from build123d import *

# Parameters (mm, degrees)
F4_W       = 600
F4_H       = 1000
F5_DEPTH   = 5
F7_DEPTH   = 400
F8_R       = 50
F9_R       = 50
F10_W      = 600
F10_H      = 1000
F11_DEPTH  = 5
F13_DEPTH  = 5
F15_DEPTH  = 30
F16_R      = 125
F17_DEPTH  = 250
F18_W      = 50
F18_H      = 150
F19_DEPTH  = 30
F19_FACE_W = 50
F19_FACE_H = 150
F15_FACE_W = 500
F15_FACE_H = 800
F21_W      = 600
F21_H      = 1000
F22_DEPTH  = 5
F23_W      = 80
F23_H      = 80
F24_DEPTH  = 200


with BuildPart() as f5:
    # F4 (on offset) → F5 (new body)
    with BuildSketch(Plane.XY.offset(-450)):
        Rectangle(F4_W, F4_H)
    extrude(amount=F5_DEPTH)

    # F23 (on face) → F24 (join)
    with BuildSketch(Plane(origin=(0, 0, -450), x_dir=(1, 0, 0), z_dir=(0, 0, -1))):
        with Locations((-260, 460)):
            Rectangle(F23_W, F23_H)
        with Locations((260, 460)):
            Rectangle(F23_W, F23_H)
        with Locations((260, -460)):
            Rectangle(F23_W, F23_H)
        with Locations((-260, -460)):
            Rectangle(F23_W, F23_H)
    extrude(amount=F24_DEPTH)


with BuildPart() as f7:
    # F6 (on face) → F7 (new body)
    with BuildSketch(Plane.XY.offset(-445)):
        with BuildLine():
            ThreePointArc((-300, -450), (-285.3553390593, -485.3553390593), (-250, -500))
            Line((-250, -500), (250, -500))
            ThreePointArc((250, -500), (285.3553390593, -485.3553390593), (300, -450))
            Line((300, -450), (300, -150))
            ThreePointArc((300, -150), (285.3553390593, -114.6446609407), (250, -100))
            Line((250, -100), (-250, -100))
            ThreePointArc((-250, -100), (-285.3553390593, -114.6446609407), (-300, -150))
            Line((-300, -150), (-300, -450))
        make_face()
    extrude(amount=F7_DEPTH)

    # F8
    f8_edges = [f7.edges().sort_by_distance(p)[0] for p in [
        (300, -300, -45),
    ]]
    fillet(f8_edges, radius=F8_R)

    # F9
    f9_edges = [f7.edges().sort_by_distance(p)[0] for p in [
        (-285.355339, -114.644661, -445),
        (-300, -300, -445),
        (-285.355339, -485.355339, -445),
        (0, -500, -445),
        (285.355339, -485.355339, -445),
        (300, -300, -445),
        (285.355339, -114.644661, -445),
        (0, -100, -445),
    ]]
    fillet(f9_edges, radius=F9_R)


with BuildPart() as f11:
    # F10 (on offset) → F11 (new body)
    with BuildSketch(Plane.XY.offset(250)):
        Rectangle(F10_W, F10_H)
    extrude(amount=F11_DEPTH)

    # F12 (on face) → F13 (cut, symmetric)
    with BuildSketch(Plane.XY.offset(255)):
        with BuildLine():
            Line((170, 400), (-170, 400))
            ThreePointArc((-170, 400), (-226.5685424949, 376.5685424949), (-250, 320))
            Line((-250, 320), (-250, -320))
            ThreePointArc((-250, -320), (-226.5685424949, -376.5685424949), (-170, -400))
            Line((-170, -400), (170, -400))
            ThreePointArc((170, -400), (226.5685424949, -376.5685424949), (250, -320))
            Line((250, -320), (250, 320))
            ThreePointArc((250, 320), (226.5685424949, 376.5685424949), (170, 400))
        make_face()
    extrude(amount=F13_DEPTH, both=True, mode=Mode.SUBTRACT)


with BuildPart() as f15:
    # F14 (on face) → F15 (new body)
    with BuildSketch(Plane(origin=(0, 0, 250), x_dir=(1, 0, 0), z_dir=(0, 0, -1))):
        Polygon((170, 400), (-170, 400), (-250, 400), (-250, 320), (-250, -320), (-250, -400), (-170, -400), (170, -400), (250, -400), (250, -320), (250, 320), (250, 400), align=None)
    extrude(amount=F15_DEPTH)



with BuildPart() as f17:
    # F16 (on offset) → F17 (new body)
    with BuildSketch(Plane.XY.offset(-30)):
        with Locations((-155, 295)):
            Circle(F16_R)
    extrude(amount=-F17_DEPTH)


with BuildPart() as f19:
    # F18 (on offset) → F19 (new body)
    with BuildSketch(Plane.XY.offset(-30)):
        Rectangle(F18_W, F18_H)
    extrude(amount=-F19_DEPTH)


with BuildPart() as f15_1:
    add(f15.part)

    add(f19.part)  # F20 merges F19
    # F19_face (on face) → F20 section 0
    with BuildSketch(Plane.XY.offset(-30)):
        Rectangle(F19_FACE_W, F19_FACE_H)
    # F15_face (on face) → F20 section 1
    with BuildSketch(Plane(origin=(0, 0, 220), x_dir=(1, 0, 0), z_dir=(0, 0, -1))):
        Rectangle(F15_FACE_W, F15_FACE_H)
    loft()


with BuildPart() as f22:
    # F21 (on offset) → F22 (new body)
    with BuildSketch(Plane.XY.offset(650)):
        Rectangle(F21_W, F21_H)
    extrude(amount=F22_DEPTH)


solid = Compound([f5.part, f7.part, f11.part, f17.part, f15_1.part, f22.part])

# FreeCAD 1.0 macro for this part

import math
import FreeCAD as App
import Part
import Sketcher
Q = App.Units.Quantity


def edges_at(feature, points):
    """Names of the edges that pass closest to the given points."""
    edges = feature.Shape.Edges
    near = lambda p: min(range(len(edges)), key=lambda i: edges[i].distToShape(Part.Vertex(*p))[0])
    return sorted({f"Edge{near(p) + 1}" for p in points})

doc = App.newDocument("Part")
body = doc.addObject("PartDesign::Body", "Body")

sketch1 = doc.addObject("Sketcher::SketchObject", "Sketch")
body.addObject(sketch1)
sketch1.AttachmentSupport = (doc.XY_Plane, [""])
sketch1.MapMode = "FlatFace"
sketch1.AttachmentOffset = App.Placement(App.Vector(0, 0, -450), App.Rotation())
sketch1.addGeometry([
    Part.LineSegment(App.Vector(-300, 500, 0), App.Vector(-300, -500, 0)),
    Part.LineSegment(App.Vector(-300, -500, 0), App.Vector(300, -500, 0)),
    Part.LineSegment(App.Vector(300, -500, 0), App.Vector(300, 500, 0)),
    Part.LineSegment(App.Vector(300, 500, 0), App.Vector(-300, 500, 0)),
], False)
sketch1.addConstraint([
    Sketcher.Constraint("Coincident", 0, 2, 1, 1),
    Sketcher.Constraint("Coincident", 1, 2, 2, 1),
    Sketcher.Constraint("Coincident", 2, 2, 3, 1),
    Sketcher.Constraint("Coincident", 3, 2, 0, 1),
    Sketcher.Constraint("Vertical", 0),
    Sketcher.Constraint("Horizontal", 1),
    Sketcher.Constraint("Vertical", 2),
    Sketcher.Constraint("Horizontal", 3),
    Sketcher.Constraint("Symmetric", 0, 2, 2, 2, -1, 1),
    Sketcher.Constraint("DistanceX", 1, 1, 1, 2, Q("600 mm")),
    Sketcher.Constraint("DistanceY", 0, 2, 0, 1, Q("1000 mm")),
])
pad1 = doc.addObject("PartDesign::Pad", "Pad")
body.addObject(pad1)
pad1.Profile = sketch1
pad1.Length = 5

sketch2 = doc.addObject("Sketcher::SketchObject", "Sketch001")
body.addObject(sketch2)
sketch2.AttachmentSupport = (doc.XY_Plane, [""])
sketch2.MapMode = "FlatFace"
sketch2.AttachmentOffset = App.Placement(App.Vector(0, 0, -450), App.Rotation())
sketch2.addGeometry([
    Part.LineSegment(App.Vector(-300, -500, 0), App.Vector(-300, -420, 0)),
    Part.LineSegment(App.Vector(-300, -420, 0), App.Vector(-220, -420, 0)),
    Part.LineSegment(App.Vector(-220, -420, 0), App.Vector(-220, -500, 0)),
    Part.LineSegment(App.Vector(-220, -500, 0), App.Vector(-300, -500, 0)),
    Part.LineSegment(App.Vector(220, -500, 0), App.Vector(220, -420, 0)),
    Part.LineSegment(App.Vector(220, -420, 0), App.Vector(300, -420, 0)),
    Part.LineSegment(App.Vector(300, -420, 0), App.Vector(300, -500, 0)),
    Part.LineSegment(App.Vector(300, -500, 0), App.Vector(220, -500, 0)),
    Part.LineSegment(App.Vector(220, 420, 0), App.Vector(220, 500, 0)),
    Part.LineSegment(App.Vector(220, 500, 0), App.Vector(300, 500, 0)),
    Part.LineSegment(App.Vector(300, 500, 0), App.Vector(300, 420, 0)),
    Part.LineSegment(App.Vector(300, 420, 0), App.Vector(220, 420, 0)),
    Part.LineSegment(App.Vector(-300, 420, 0), App.Vector(-300, 500, 0)),
    Part.LineSegment(App.Vector(-300, 500, 0), App.Vector(-220, 500, 0)),
    Part.LineSegment(App.Vector(-220, 500, 0), App.Vector(-220, 420, 0)),
    Part.LineSegment(App.Vector(-220, 420, 0), App.Vector(-300, 420, 0)),
], False)
sketch2.addConstraint([
    Sketcher.Constraint("Coincident", 0, 2, 1, 1),
    Sketcher.Constraint("Coincident", 1, 2, 2, 1),
    Sketcher.Constraint("Coincident", 2, 2, 3, 1),
    Sketcher.Constraint("Coincident", 3, 2, 0, 1),
    Sketcher.Constraint("Coincident", 4, 2, 5, 1),
    Sketcher.Constraint("Coincident", 5, 2, 6, 1),
    Sketcher.Constraint("Coincident", 6, 2, 7, 1),
    Sketcher.Constraint("Coincident", 7, 2, 4, 1),
    Sketcher.Constraint("Coincident", 8, 2, 9, 1),
    Sketcher.Constraint("Coincident", 9, 2, 10, 1),
    Sketcher.Constraint("Coincident", 10, 2, 11, 1),
    Sketcher.Constraint("Coincident", 11, 2, 8, 1),
    Sketcher.Constraint("Coincident", 12, 2, 13, 1),
    Sketcher.Constraint("Coincident", 13, 2, 14, 1),
    Sketcher.Constraint("Coincident", 14, 2, 15, 1),
    Sketcher.Constraint("Coincident", 15, 2, 12, 1),
    Sketcher.Constraint("Vertical", 0),
    Sketcher.Constraint("Horizontal", 1),
    Sketcher.Constraint("Vertical", 2),
    Sketcher.Constraint("Horizontal", 3),
    Sketcher.Constraint("Vertical", 4),
    Sketcher.Constraint("Horizontal", 5),
    Sketcher.Constraint("Vertical", 6),
    Sketcher.Constraint("Horizontal", 7),
    Sketcher.Constraint("Vertical", 8),
    Sketcher.Constraint("Horizontal", 9),
    Sketcher.Constraint("Vertical", 10),
    Sketcher.Constraint("Horizontal", 11),
    Sketcher.Constraint("Vertical", 12),
    Sketcher.Constraint("Horizontal", 13),
    Sketcher.Constraint("Vertical", 14),
    Sketcher.Constraint("Horizontal", 15),
    Sketcher.Constraint("Symmetric", 2, 2, 8, 2, -1, 1),
    Sketcher.Constraint("Symmetric", 0, 2, 10, 2, -1, 1),
    Sketcher.Constraint("Symmetric", 6, 2, 12, 2, -1, 1),
    Sketcher.Constraint("Symmetric", 4, 2, 14, 2, -1, 1),
    Sketcher.Constraint("Symmetric", 1, 2, 4, 2, -2),
    Sketcher.Constraint("Symmetric", 3, 2, 6, 2, -2),
    Sketcher.Constraint("Equal", 15, 0),
    Sketcher.Constraint("DistanceX", 1, 1, 1, 2, Q("80 mm")),
    Sketcher.Constraint("DistanceX", 0, 2, -1, 1, Q("300 mm")),
    Sketcher.Constraint("DistanceY", 0, 2, -1, 1, Q("420 mm")),
])
pad2 = doc.addObject("PartDesign::Pad", "Pad001")
body.addObject(pad2)
pad2.Profile = sketch2
pad2.Length = 200
pad2.Reversed = True
body2 = doc.addObject("PartDesign::Body", "Body001")

sketch3 = doc.addObject("Sketcher::SketchObject", "Sketch002")
body2.addObject(sketch3)
sketch3.AttachmentSupport = (doc.getObject("XY_Plane001"), [""])
sketch3.MapMode = "FlatFace"
sketch3.AttachmentOffset = App.Placement(App.Vector(0, 0, -445), App.Rotation())
sketch3.addGeometry([
    Part.ArcOfCircle(Part.Circle(App.Vector(-250, -450, 0), App.Vector(0, 0, 1), 50), math.radians(180), math.radians(270)),
    Part.LineSegment(App.Vector(-250, -500, 0), App.Vector(250, -500, 0)),
    Part.ArcOfCircle(Part.Circle(App.Vector(250, -450, 0), App.Vector(0, 0, 1), 50), math.radians(-90), math.radians(0)),
    Part.LineSegment(App.Vector(300, -450, 0), App.Vector(300, -150, 0)),
    Part.ArcOfCircle(Part.Circle(App.Vector(250, -150, 0), App.Vector(0, 0, 1), 50), math.radians(0), math.radians(90)),
    Part.LineSegment(App.Vector(250, -100, 0), App.Vector(-250, -100, 0)),
    Part.ArcOfCircle(Part.Circle(App.Vector(-250, -150, 0), App.Vector(0, 0, 1), 50), math.radians(90), math.radians(180)),
    Part.LineSegment(App.Vector(-300, -150, 0), App.Vector(-300, -450, 0)),
], False)
sketch3.addConstraint([
    Sketcher.Constraint("Tangent", 0, 2, 1, 1),
    Sketcher.Constraint("Tangent", 1, 2, 2, 1),
    Sketcher.Constraint("Tangent", 2, 2, 3, 1),
    Sketcher.Constraint("Tangent", 3, 2, 4, 1),
    Sketcher.Constraint("Tangent", 4, 2, 5, 1),
    Sketcher.Constraint("Tangent", 5, 2, 6, 1),
    Sketcher.Constraint("Tangent", 6, 2, 7, 1),
    Sketcher.Constraint("Tangent", 7, 2, 0, 1),
    Sketcher.Constraint("Horizontal", 1),
    Sketcher.Constraint("Vertical", 3),
    Sketcher.Constraint("Horizontal", 5),
    Sketcher.Constraint("Vertical", 7),
    Sketcher.Constraint("Equal", 0, 2),
    Sketcher.Constraint("Equal", 2, 4),
    Sketcher.Constraint("Equal", 4, 6),
    Sketcher.Constraint("Radius", 0, Q("50 mm")),
    Sketcher.Constraint("DistanceX", 1, 1, 1, 2, Q("500 mm")),
    Sketcher.Constraint("DistanceY", 3, 1, 3, 2, Q("300 mm")),
    Sketcher.Constraint("DistanceX", 0, 3, -1, 1, Q("250 mm")),
    Sketcher.Constraint("DistanceY", 0, 3, -1, 1, Q("450 mm")),
])
pad3 = doc.addObject("PartDesign::Pad", "Pad002")
body2.addObject(pad3)
pad3.Profile = sketch3
pad3.Length = 400
doc.recompute()

fillet = doc.addObject("PartDesign::Fillet", "Fillet")
body2.addObject(fillet)
fillet.Base = (pad3, edges_at(pad3, [(300, -300, -45)]))
fillet.Radius = 50
doc.recompute()

fillet2 = doc.addObject("PartDesign::Fillet", "Fillet001")
body2.addObject(fillet2)
fillet2.Base = (fillet, edges_at(fillet, [
    (-285.355, -114.645, -445),
    (-300, -300, -445),
    (-285.355, -485.355, -445),
    (0, -500, -445),
    (285.355, -485.355, -445),
    (300, -300, -445),
    (285.355, -114.645, -445),
    (0, -100, -445),
]))
fillet2.Radius = 50
body3 = doc.addObject("PartDesign::Body", "Body002")

sketch4 = doc.addObject("Sketcher::SketchObject", "Sketch003")
body3.addObject(sketch4)
sketch4.AttachmentSupport = (doc.getObject("XY_Plane002"), [""])
sketch4.MapMode = "FlatFace"
sketch4.AttachmentOffset = App.Placement(App.Vector(0, 0, 250), App.Rotation())
sketch4.addGeometry([
    Part.LineSegment(App.Vector(-300, 500, 0), App.Vector(-300, -500, 0)),
    Part.LineSegment(App.Vector(-300, -500, 0), App.Vector(300, -500, 0)),
    Part.LineSegment(App.Vector(300, -500, 0), App.Vector(300, 500, 0)),
    Part.LineSegment(App.Vector(300, 500, 0), App.Vector(-300, 500, 0)),
], False)
sketch4.addConstraint([
    Sketcher.Constraint("Coincident", 0, 2, 1, 1),
    Sketcher.Constraint("Coincident", 1, 2, 2, 1),
    Sketcher.Constraint("Coincident", 2, 2, 3, 1),
    Sketcher.Constraint("Coincident", 3, 2, 0, 1),
    Sketcher.Constraint("Vertical", 0),
    Sketcher.Constraint("Horizontal", 1),
    Sketcher.Constraint("Vertical", 2),
    Sketcher.Constraint("Horizontal", 3),
    Sketcher.Constraint("Symmetric", 0, 2, 2, 2, -1, 1),
    Sketcher.Constraint("DistanceX", 1, 1, 1, 2, Q("600 mm")),
    Sketcher.Constraint("DistanceY", 0, 2, 0, 1, Q("1000 mm")),
])
pad4 = doc.addObject("PartDesign::Pad", "Pad003")
body3.addObject(pad4)
pad4.Profile = sketch4
pad4.Length = 5

sketch5 = doc.addObject("Sketcher::SketchObject", "Sketch004")
body3.addObject(sketch5)
sketch5.AttachmentSupport = (doc.getObject("XY_Plane002"), [""])
sketch5.MapMode = "FlatFace"
sketch5.AttachmentOffset = App.Placement(App.Vector(0, 0, 255), App.Rotation())
sketch5.addGeometry([
    Part.LineSegment(App.Vector(170, 400, 0), App.Vector(-170, 400, 0)),
    Part.ArcOfCircle(Part.Circle(App.Vector(-170, 320, 0), App.Vector(0, 0, 1), 80), math.radians(90), math.radians(180)),
    Part.LineSegment(App.Vector(-250, 320, 0), App.Vector(-250, -320, 0)),
    Part.ArcOfCircle(Part.Circle(App.Vector(-170, -320, 0), App.Vector(0, 0, 1), 80), math.radians(180), math.radians(270)),
    Part.LineSegment(App.Vector(-170, -400, 0), App.Vector(170, -400, 0)),
    Part.ArcOfCircle(Part.Circle(App.Vector(170, -320, 0), App.Vector(0, 0, 1), 80), math.radians(-90), math.radians(0)),
    Part.LineSegment(App.Vector(250, -320, 0), App.Vector(250, 320, 0)),
    Part.ArcOfCircle(Part.Circle(App.Vector(170, 320, 0), App.Vector(0, 0, 1), 80), math.radians(0), math.radians(90)),
], False)
sketch5.addConstraint([
    Sketcher.Constraint("Tangent", 0, 2, 1, 1),
    Sketcher.Constraint("Tangent", 1, 2, 2, 1),
    Sketcher.Constraint("Tangent", 2, 2, 3, 1),
    Sketcher.Constraint("Tangent", 3, 2, 4, 1),
    Sketcher.Constraint("Tangent", 4, 2, 5, 1),
    Sketcher.Constraint("Tangent", 5, 2, 6, 1),
    Sketcher.Constraint("Tangent", 6, 2, 7, 1),
    Sketcher.Constraint("Tangent", 7, 2, 0, 1),
    Sketcher.Constraint("Horizontal", 0),
    Sketcher.Constraint("Vertical", 2),
    Sketcher.Constraint("Horizontal", 4),
    Sketcher.Constraint("Vertical", 6),
    Sketcher.Constraint("Equal", 1, 3),
    Sketcher.Constraint("Equal", 3, 5),
    Sketcher.Constraint("Equal", 5, 7),
    Sketcher.Constraint("Symmetric", 1, 3, 5, 3, -1, 1),
    Sketcher.Constraint("Radius", 1, Q("80 mm")),
    Sketcher.Constraint("DistanceX", 0, 2, 0, 1, Q("340 mm")),
    Sketcher.Constraint("DistanceY", 2, 2, 2, 1, Q("640 mm")),
])
pocket1 = doc.addObject("PartDesign::Pocket", "Pocket")
body3.addObject(pocket1)
pocket1.Profile = sketch5
pocket1.Length = 10
pocket1.Midplane = True
body4 = doc.addObject("PartDesign::Body", "Body003")

sketch6 = doc.addObject("Sketcher::SketchObject", "Sketch005")
body4.addObject(sketch6)
sketch6.AttachmentSupport = (doc.getObject("XY_Plane003"), [""])
sketch6.MapMode = "FlatFace"
sketch6.AttachmentOffset = App.Placement(App.Vector(0, 0, 250), App.Rotation())
sketch6.addGeometry([
    Part.LineSegment(App.Vector(-250, -400, 0), App.Vector(-250, 400, 0)),
    Part.LineSegment(App.Vector(-250, 400, 0), App.Vector(250, 400, 0)),
    Part.LineSegment(App.Vector(250, 400, 0), App.Vector(250, -400, 0)),
    Part.LineSegment(App.Vector(250, -400, 0), App.Vector(-250, -400, 0)),
], False)
sketch6.addConstraint([
    Sketcher.Constraint("Coincident", 0, 2, 1, 1),
    Sketcher.Constraint("Coincident", 1, 2, 2, 1),
    Sketcher.Constraint("Coincident", 2, 2, 3, 1),
    Sketcher.Constraint("Coincident", 3, 2, 0, 1),
    Sketcher.Constraint("Vertical", 0),
    Sketcher.Constraint("Horizontal", 1),
    Sketcher.Constraint("Vertical", 2),
    Sketcher.Constraint("Horizontal", 3),
    Sketcher.Constraint("Symmetric", 0, 2, 2, 2, -1, 1),
    Sketcher.Constraint("DistanceX", 1, 1, 1, 2, Q("500 mm")),
    Sketcher.Constraint("DistanceY", 0, 1, 0, 2, Q("800 mm")),
])
pad5 = doc.addObject("PartDesign::Pad", "Pad004")
body4.addObject(pad5)
pad5.Profile = sketch6
pad5.Length = 30
pad5.Reversed = True
body5 = doc.addObject("PartDesign::Body", "Body004")

sketch7 = doc.addObject("Sketcher::SketchObject", "Sketch006")
body5.addObject(sketch7)
sketch7.AttachmentSupport = (doc.getObject("XY_Plane004"), [""])
sketch7.MapMode = "FlatFace"
sketch7.AttachmentOffset = App.Placement(App.Vector(0, 0, -30), App.Rotation())
sketch7.addGeometry(Part.Circle(App.Vector(-155, 295, 0), App.Vector(0, 0, 1), 125), False)
sketch7.addConstraint([
    Sketcher.Constraint("Diameter", 0, Q("250 mm")),
    Sketcher.Constraint("DistanceX", 0, 3, -1, 1, Q("155 mm")),
    Sketcher.Constraint("DistanceY", -1, 1, 0, 3, Q("295 mm")),
])
pad6 = doc.addObject("PartDesign::Pad", "Pad005")
body5.addObject(pad6)
pad6.Profile = sketch7
pad6.Length = 250
pad6.Reversed = True
body6 = doc.addObject("PartDesign::Body", "Body005")

sketch8 = doc.addObject("Sketcher::SketchObject", "Sketch007")
body6.addObject(sketch8)
sketch8.AttachmentSupport = (doc.getObject("XY_Plane005"), [""])
sketch8.MapMode = "FlatFace"
sketch8.AttachmentOffset = App.Placement(App.Vector(0, 0, -30), App.Rotation())
sketch8.addGeometry([
    Part.LineSegment(App.Vector(-25, 75, 0), App.Vector(-25, -75, 0)),
    Part.LineSegment(App.Vector(-25, -75, 0), App.Vector(25, -75, 0)),
    Part.LineSegment(App.Vector(25, -75, 0), App.Vector(25, 75, 0)),
    Part.LineSegment(App.Vector(25, 75, 0), App.Vector(-25, 75, 0)),
], False)
sketch8.addConstraint([
    Sketcher.Constraint("Coincident", 0, 2, 1, 1),
    Sketcher.Constraint("Coincident", 1, 2, 2, 1),
    Sketcher.Constraint("Coincident", 2, 2, 3, 1),
    Sketcher.Constraint("Coincident", 3, 2, 0, 1),
    Sketcher.Constraint("Vertical", 0),
    Sketcher.Constraint("Horizontal", 1),
    Sketcher.Constraint("Vertical", 2),
    Sketcher.Constraint("Horizontal", 3),
    Sketcher.Constraint("Symmetric", 0, 2, 2, 2, -1, 1),
    Sketcher.Constraint("DistanceX", 1, 1, 1, 2, Q("50 mm")),
    Sketcher.Constraint("DistanceY", 0, 2, 0, 1, Q("150 mm")),
])
pad7 = doc.addObject("PartDesign::Pad", "Pad006")
body6.addObject(pad7)
pad7.Profile = sketch8
pad7.Length = 30
pad7.Reversed = True
body4.AllowCompound = True
doc.recompute()

boolean = doc.addObject("PartDesign::Boolean", "Boolean")
body4.addObject(boolean)
boolean.Type = "Fuse"
boolean.addObjects([body6])

sketch9 = doc.addObject("Sketcher::SketchObject", "Sketch008")
body4.addObject(sketch9)
sketch9.AttachmentSupport = (doc.getObject("XY_Plane003"), [""])
sketch9.MapMode = "FlatFace"
sketch9.AttachmentOffset = App.Placement(App.Vector(0, 0, -30), App.Rotation())
sketch9.addGeometry([
    Part.LineSegment(App.Vector(-25, 75, 0), App.Vector(-25, -75, 0)),
    Part.LineSegment(App.Vector(-25, -75, 0), App.Vector(25, -75, 0)),
    Part.LineSegment(App.Vector(25, -75, 0), App.Vector(25, 75, 0)),
    Part.LineSegment(App.Vector(25, 75, 0), App.Vector(-25, 75, 0)),
], False)
sketch9.addConstraint([
    Sketcher.Constraint("Coincident", 0, 2, 1, 1),
    Sketcher.Constraint("Coincident", 1, 2, 2, 1),
    Sketcher.Constraint("Coincident", 2, 2, 3, 1),
    Sketcher.Constraint("Coincident", 3, 2, 0, 1),
    Sketcher.Constraint("Vertical", 0),
    Sketcher.Constraint("Horizontal", 1),
    Sketcher.Constraint("Vertical", 2),
    Sketcher.Constraint("Horizontal", 3),
    Sketcher.Constraint("Symmetric", 0, 2, 2, 2, -1, 1),
    Sketcher.Constraint("DistanceX", 1, 1, 1, 2, Q("50 mm")),
    Sketcher.Constraint("DistanceY", 0, 2, 0, 1, Q("150 mm")),
])

sketch10 = doc.addObject("Sketcher::SketchObject", "Sketch009")
body4.addObject(sketch10)
sketch10.AttachmentSupport = (doc.getObject("XY_Plane003"), [""])
sketch10.MapMode = "FlatFace"
sketch10.AttachmentOffset = App.Placement(App.Vector(0, 0, 220), App.Rotation())
sketch10.addGeometry([
    Part.LineSegment(App.Vector(-250, -400, 0), App.Vector(-250, 400, 0)),
    Part.LineSegment(App.Vector(-250, 400, 0), App.Vector(250, 400, 0)),
    Part.LineSegment(App.Vector(250, 400, 0), App.Vector(250, -400, 0)),
    Part.LineSegment(App.Vector(250, -400, 0), App.Vector(-250, -400, 0)),
], False)
sketch10.addConstraint([
    Sketcher.Constraint("Coincident", 0, 2, 1, 1),
    Sketcher.Constraint("Coincident", 1, 2, 2, 1),
    Sketcher.Constraint("Coincident", 2, 2, 3, 1),
    Sketcher.Constraint("Coincident", 3, 2, 0, 1),
    Sketcher.Constraint("Vertical", 0),
    Sketcher.Constraint("Horizontal", 1),
    Sketcher.Constraint("Vertical", 2),
    Sketcher.Constraint("Horizontal", 3),
    Sketcher.Constraint("Symmetric", 0, 2, 2, 2, -1, 1),
    Sketcher.Constraint("DistanceX", 1, 1, 1, 2, Q("500 mm")),
    Sketcher.Constraint("DistanceY", 0, 1, 0, 2, Q("800 mm")),
])

additiveloft = doc.addObject("PartDesign::AdditiveLoft", "AdditiveLoft")
body4.addObject(additiveloft)
additiveloft.Profile = sketch9
additiveloft.Sections = [sketch10]
body7 = doc.addObject("PartDesign::Body", "Body006")

sketch11 = doc.addObject("Sketcher::SketchObject", "Sketch010")
body7.addObject(sketch11)
sketch11.AttachmentSupport = (doc.getObject("XY_Plane006"), [""])
sketch11.MapMode = "FlatFace"
sketch11.AttachmentOffset = App.Placement(App.Vector(0, 0, 650), App.Rotation())
sketch11.addGeometry([
    Part.LineSegment(App.Vector(-300, 500, 0), App.Vector(-300, -500, 0)),
    Part.LineSegment(App.Vector(-300, -500, 0), App.Vector(300, -500, 0)),
    Part.LineSegment(App.Vector(300, -500, 0), App.Vector(300, 500, 0)),
    Part.LineSegment(App.Vector(300, 500, 0), App.Vector(-300, 500, 0)),
], False)
sketch11.addConstraint([
    Sketcher.Constraint("Coincident", 0, 2, 1, 1),
    Sketcher.Constraint("Coincident", 1, 2, 2, 1),
    Sketcher.Constraint("Coincident", 2, 2, 3, 1),
    Sketcher.Constraint("Coincident", 3, 2, 0, 1),
    Sketcher.Constraint("Vertical", 0),
    Sketcher.Constraint("Horizontal", 1),
    Sketcher.Constraint("Vertical", 2),
    Sketcher.Constraint("Horizontal", 3),
    Sketcher.Constraint("Symmetric", 0, 2, 2, 2, -1, 1),
    Sketcher.Constraint("DistanceX", 1, 1, 1, 2, Q("600 mm")),
    Sketcher.Constraint("DistanceY", 0, 2, 0, 1, Q("1000 mm")),
])
pad8 = doc.addObject("PartDesign::Pad", "Pad007")
body7.addObject(pad8)
pad8.Profile = sketch11
pad8.Length = 5

doc.recompute()
